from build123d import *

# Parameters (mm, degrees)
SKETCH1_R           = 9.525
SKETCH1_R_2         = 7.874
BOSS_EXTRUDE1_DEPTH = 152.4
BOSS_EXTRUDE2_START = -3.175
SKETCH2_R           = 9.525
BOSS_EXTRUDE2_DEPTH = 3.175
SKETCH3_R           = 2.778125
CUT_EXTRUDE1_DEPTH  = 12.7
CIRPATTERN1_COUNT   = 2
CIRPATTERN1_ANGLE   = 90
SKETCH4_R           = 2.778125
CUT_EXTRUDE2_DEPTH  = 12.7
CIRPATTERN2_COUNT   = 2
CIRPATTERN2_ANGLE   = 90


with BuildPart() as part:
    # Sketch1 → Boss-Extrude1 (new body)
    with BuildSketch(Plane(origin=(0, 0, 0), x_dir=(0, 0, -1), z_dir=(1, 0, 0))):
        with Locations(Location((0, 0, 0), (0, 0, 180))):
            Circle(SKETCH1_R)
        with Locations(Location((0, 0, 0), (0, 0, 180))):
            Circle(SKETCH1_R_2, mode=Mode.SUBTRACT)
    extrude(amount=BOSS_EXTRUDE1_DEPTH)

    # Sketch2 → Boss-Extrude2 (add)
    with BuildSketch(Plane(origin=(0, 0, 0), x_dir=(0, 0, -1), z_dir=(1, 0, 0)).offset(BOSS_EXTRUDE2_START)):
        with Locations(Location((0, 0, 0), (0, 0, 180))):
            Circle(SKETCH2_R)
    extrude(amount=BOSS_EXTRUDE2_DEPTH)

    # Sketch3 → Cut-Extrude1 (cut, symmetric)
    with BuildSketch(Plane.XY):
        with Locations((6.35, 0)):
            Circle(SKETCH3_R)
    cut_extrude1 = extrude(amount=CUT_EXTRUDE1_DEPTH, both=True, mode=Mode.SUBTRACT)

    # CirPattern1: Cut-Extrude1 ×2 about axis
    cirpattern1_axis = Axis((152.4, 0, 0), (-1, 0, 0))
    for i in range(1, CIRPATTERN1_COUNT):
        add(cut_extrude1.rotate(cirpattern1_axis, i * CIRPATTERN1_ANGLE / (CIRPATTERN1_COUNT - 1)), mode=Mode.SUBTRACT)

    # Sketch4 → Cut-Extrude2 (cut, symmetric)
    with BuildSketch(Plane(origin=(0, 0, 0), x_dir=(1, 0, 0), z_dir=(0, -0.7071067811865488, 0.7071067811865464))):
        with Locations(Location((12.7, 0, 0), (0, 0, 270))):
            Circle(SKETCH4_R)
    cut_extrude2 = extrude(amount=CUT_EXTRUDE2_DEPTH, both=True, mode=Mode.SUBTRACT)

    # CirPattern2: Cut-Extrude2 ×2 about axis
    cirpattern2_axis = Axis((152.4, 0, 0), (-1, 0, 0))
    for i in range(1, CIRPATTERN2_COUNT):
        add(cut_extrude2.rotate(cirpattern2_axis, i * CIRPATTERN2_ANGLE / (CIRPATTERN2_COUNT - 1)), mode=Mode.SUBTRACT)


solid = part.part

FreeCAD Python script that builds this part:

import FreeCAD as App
import Part
import Sketcher
Q = App.Units.Quantity

doc = App.newDocument("Part")
body = doc.addObject("PartDesign::Body", "Body")

# Sketch on YZ plane
sketch1 = body.newObject("Sketcher::SketchObject", "Sketch")
sketch1.AttachmentSupport = (doc.getObject("YZ_Plane"), [""])
sketch1.MapMode = "FlatFace"
sketch1.addGeometry([
    Part.Circle(App.Vector(0, 0, 0), App.Vector(0, 0, 1), 9.525),
    Part.Circle(App.Vector(0, 0, 0), App.Vector(0, 0, 1), 7.874),
], False)
sketch1.addConstraint([
    Sketcher.Constraint("Coincident", 0, 3, -1, 1),
    Sketcher.Constraint("Coincident", 1, 3, -1, 1),
    Sketcher.Constraint("Diameter", 0, Q("0.75 in")),
    Sketcher.Constraint("Diameter", 1, Q("0.62 in")),
])
pad1 = body.newObject("PartDesign::Pad", "Pad")
pad1.Profile = sketch1
pad1.Length = Q("6 in")

# Sketch on YZ plane
sketch2 = body.newObject("Sketcher::SketchObject", "Sketch001")
sketch2.AttachmentSupport = (doc.getObject("YZ_Plane"), [""])
sketch2.MapMode = "FlatFace"
sketch2.AttachmentOffset = App.Placement(App.Vector(0, 0, -0.125 * 25.4), App.Rotation())
sketch2.addGeometry(Part.Circle(App.Vector(0, 0, 0), App.Vector(0, 0, 1), 9.525), False)
sketch2.addConstraint([
    Sketcher.Constraint("Coincident", 0, 3, -1, 1),
    Sketcher.Constraint("Diameter", 0, Q("0.75 in")),
])
pad2 = body.newObject("PartDesign::Pad", "Pad001")
pad2.Profile = sketch2
pad2.Length = Q("0.125 in")

# Sketch on XY plane
sketch3 = body.newObject("Sketcher::SketchObject", "Sketch002")
sketch3.AttachmentSupport = (doc.getObject("XY_Plane"), [""])
sketch3.MapMode = "FlatFace"
sketch3.addGeometry(Part.Circle(App.Vector(6.35, 0, 0), App.Vector(0, 0, 1), 2.778125), False)
sketch3.addConstraint([
    Sketcher.Constraint("PointOnObject", 0, 3, -1),
    Sketcher.Constraint("Diameter", 0, Q("0.21875 in")),
    Sketcher.Constraint("DistanceX", -1, 1, 0, 3, Q("0.25 in")),
])
pocket1 = body.newObject("PartDesign::Pocket", "Pocket")
pocket1.Profile = sketch3
pocket1.Length = Q("1 in")
pocket1.Midplane = True
doc.recompute()

polarpattern = body.newObject("PartDesign::PolarPattern", "PolarPattern")
polarpattern.Originals = [pocket1]
polarpattern.Axis = (doc.getObject("X_Axis"), [""])
polarpattern.Angle = 90
polarpattern.Occurrences = 2
polarpattern.Reversed = True
body.Tip = polarpattern

# Sketch on an angled plane
sketch4 = body.newObject("Sketcher::SketchObject", "Sketch003")
sketch4.Placement = App.Placement(App.Vector(0, 0, 0), App.Rotation(App.Vector(1, 0, 0), App.Vector(0, 0.707106781, 0.707106781), App.Vector(0, -0.707106781, 0.707106781), "ZXY"))
sketch4.addGeometry(Part.Circle(App.Vector(12.7, 0, 0), App.Vector(0, 0, 1), 2.778125), False)
sketch4.addConstraint([
    Sketcher.Constraint("PointOnObject", 0, 3, -1),
    Sketcher.Constraint("Diameter", 0, Q("0.21875 in")),
    Sketcher.Constraint("DistanceX", -1, 1, 0, 3, Q("0.5 in")),
])
pocket2 = body.newObject("PartDesign::Pocket", "Pocket001")
pocket2.Profile = sketch4
pocket2.Length = Q("1 in")
pocket2.Midplane = True
doc.recompute()

polarpattern2 = body.newObject("PartDesign::PolarPattern", "PolarPattern001")
polarpattern2.Originals = [pocket2]
polarpattern2.Axis = (doc.getObject("X_Axis"), [""])
polarpattern2.Angle = 90
polarpattern2.Occurrences = 2
polarpattern2.Reversed = True
body.Tip = polarpattern2

doc.recompute()
